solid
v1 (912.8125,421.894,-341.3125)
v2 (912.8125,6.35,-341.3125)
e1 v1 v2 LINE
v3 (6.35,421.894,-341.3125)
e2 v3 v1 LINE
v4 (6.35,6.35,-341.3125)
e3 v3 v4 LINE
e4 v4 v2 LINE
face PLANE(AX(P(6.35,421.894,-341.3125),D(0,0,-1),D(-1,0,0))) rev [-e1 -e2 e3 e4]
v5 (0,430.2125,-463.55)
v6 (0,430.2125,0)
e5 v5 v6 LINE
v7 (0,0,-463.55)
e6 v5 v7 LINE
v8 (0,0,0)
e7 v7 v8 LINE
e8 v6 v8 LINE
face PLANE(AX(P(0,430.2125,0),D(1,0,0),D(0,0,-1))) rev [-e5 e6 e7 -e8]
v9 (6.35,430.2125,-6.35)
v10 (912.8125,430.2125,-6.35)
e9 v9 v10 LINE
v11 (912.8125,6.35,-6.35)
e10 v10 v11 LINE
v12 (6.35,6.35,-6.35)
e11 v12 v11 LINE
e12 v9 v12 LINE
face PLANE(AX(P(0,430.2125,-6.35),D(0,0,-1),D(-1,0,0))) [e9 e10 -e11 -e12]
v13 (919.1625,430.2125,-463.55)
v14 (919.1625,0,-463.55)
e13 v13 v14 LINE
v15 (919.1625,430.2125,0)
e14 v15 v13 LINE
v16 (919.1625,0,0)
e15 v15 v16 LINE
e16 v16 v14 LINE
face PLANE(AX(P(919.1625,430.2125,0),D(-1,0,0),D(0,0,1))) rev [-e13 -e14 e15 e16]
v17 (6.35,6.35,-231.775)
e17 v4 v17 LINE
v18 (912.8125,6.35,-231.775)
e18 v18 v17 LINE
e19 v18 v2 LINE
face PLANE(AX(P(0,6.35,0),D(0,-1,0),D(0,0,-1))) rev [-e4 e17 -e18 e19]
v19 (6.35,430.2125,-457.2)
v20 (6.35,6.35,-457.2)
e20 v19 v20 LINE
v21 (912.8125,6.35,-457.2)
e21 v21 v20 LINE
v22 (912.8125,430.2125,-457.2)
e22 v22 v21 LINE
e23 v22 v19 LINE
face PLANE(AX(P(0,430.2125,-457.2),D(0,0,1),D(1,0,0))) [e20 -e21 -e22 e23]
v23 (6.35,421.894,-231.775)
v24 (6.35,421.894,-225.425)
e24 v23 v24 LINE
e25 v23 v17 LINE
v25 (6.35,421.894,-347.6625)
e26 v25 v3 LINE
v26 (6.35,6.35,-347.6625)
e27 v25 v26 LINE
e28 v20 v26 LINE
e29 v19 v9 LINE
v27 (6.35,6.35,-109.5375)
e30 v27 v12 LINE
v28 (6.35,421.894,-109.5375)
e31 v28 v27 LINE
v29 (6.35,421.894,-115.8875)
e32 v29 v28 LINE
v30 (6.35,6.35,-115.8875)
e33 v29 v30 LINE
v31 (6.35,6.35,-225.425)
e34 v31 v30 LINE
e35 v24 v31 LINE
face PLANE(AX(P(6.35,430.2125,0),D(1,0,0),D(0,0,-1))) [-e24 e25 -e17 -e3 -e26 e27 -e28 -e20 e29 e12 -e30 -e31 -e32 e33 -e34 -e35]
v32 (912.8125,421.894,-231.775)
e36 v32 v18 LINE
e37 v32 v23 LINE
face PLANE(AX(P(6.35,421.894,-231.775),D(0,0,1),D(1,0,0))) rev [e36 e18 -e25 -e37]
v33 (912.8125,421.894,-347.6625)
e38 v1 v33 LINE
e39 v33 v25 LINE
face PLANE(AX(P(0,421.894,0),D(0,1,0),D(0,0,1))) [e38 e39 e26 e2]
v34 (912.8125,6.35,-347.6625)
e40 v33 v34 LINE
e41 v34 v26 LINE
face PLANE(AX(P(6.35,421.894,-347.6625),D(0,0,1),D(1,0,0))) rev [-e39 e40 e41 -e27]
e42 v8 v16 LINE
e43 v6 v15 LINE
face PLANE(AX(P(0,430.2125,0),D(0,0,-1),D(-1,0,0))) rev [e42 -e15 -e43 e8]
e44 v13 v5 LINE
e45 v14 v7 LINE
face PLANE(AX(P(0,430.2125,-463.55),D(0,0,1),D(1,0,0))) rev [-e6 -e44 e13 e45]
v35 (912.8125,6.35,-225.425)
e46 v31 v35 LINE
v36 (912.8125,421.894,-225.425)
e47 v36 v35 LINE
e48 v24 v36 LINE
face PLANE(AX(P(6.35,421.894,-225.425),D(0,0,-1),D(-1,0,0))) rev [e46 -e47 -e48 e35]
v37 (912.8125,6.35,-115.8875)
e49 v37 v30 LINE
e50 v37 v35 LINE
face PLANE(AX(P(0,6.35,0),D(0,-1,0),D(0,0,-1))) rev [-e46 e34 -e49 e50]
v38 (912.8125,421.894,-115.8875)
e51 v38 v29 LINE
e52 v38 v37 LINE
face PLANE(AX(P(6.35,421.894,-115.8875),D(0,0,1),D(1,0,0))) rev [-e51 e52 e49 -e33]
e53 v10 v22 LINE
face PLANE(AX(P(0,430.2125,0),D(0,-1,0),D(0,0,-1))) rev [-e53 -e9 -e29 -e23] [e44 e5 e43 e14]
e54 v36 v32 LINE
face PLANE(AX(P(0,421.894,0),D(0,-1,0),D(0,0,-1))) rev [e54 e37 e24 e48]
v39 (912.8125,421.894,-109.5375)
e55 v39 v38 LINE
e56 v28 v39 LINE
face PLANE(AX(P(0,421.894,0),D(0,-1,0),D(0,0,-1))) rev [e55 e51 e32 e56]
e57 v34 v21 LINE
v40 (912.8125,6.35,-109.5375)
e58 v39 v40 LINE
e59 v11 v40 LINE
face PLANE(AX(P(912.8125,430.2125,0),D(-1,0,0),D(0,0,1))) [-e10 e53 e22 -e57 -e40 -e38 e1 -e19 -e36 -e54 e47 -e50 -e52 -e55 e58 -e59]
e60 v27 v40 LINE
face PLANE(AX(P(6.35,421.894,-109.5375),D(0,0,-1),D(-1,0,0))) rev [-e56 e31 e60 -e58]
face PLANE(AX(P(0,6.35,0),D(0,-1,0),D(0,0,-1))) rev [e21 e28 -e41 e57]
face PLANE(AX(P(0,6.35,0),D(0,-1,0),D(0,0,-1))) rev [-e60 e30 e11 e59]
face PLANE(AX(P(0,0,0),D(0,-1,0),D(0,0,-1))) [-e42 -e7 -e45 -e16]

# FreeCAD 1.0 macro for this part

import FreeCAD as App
import Part
import Sketcher
Q = App.Units.Quantity


def faces_at(feature, points):
    """Names of the faces that lie closest to the given points."""
    faces = feature.Shape.Faces
    near = lambda p: min(range(len(faces)), key=lambda i: faces[i].distToShape(Part.Vertex(*p))[0])
    return sorted({f"Face{near(p) + 1}" for p in points})


def add_polygon(sketch, points):
    """Adds a closed chain of lines whose ends are joined by coincident constraints."""
    first, n = sketch.GeometryCount, len(points)
    for a, b in zip(points, points[1:] + points[:1]):
        sketch.addGeometry(Part.LineSegment(App.Vector(*a, 0), App.Vector(*b, 0)), False)
    for i in range(n):
        sketch.addConstraint(Sketcher.Constraint("Coincident", first + i, 2, first + (i + 1) % n, 1))

doc = App.newDocument("Part")
body = doc.addObject("PartDesign::Body", "Body")

sketch1 = body.newObject("Sketcher::SketchObject", "Sketch")
sketch1.AttachmentSupport = (doc.getObject("XZ_Plane"), [""])
sketch1.MapMode = "FlatFace"
add_polygon(sketch1, [(0, -463.55), (0, 0), (919.1625, 0), (919.1625, -463.55)])
sketch1.addConstraint([
    Sketcher.Constraint("Vertical", 0),
    Sketcher.Constraint("Horizontal", 1),
    Sketcher.Constraint("Vertical", 2),
    Sketcher.Constraint("Horizontal", 3),
    Sketcher.Constraint("Coincident", 0, 2, -1, 1),
    Sketcher.Constraint("DistanceY", 0, 1, 0, 2, Q("18.25 in")),
    Sketcher.Constraint("DistanceX", 1, 1, 1, 2, Q("36.1875 in")),
])
pad1 = body.newObject("PartDesign::Pad", "Pad")
pad1.Profile = sketch1
pad1.Length = Q("16.9375 in")
pad1.Reversed = True
doc.recompute()

thickness = body.newObject("PartDesign::Thickness", "Thickness")
thickness.Base = (pad1, faces_at(pad1, [(459.581, 430.212, -231.775)]))
thickness.Value = Q("0.25 in")
thickness.Reversed = True
thickness.Join = "Intersection"

sketch2 = body.newObject("Sketcher::SketchObject", "Sketch001")
sketch2.AttachmentSupport = (doc.getObject("XZ_Plane"), [""])
sketch2.MapMode = "FlatFace"
sketch2.AttachmentOffset = App.Placement(App.Vector(0, 0, -15.41 * 25.4), App.Rotation())
add_polygon(sketch2, [(6.35, -347.6625), (6.35, -341.3125), (912.8125, -341.3125), (912.8125, -347.6625)])
sketch2.addConstraint([
    Sketcher.Constraint("Vertical", 0),
    Sketcher.Constraint("Horizontal", 1),
    Sketcher.Constraint("Vertical", 2),
    Sketcher.Constraint("Horizontal", 3),
    Sketcher.Constraint("DistanceY", 0, 1, 0, 2, Q("0.25 in")),
    Sketcher.Constraint("DistanceX", 1, 1, 1, 2, Q("35.6875 in")),
    Sketcher.Constraint("DistanceX", -1, 1, 0, 2, Q("0.25 in")),
    Sketcher.Constraint("DistanceY", 0, 2, -1, 1, Q("13.4375 in")),
])
pad2 = body.newObject("PartDesign::Pad", "Pad001")
pad2.Profile = sketch2
pad2.Type = "UpToFirst"

sketch3 = body.newObject("Sketcher::SketchObject", "Sketch002")
sketch3.AttachmentSupport = (doc.getObject("XZ_Plane"), [""])
sketch3.MapMode = "FlatFace"
sketch3.AttachmentOffset = App.Placement(App.Vector(0, 0, -15.41 * 25.4), App.Rotation())
add_polygon(sketch3, [(6.35, -231.775), (6.35, -225.425), (912.8125, -225.425), (912.8125, -231.775)])
sketch3.addConstraint([
    Sketcher.Constraint("Vertical", 0),
    Sketcher.Constraint("Horizontal", 1),
    Sketcher.Constraint("Vertical", 2),
    Sketcher.Constraint("Horizontal", 3),
    Sketcher.Constraint("DistanceY", 0, 1, 0, 2, Q("0.25 in")),
    Sketcher.Constraint("DistanceX", 1, 1, 1, 2, Q("35.6875 in")),
    Sketcher.Constraint("DistanceX", -1, 1, 0, 2, Q("0.25 in")),
    Sketcher.Constraint("DistanceY", 0, 2, -1, 1, Q("8.875 in")),
])
pad3 = body.newObject("PartDesign::Pad", "Pad002")
pad3.Profile = sketch3
pad3.Type = "UpToFirst"

sketch4 = body.newObject("Sketcher::SketchObject", "Sketch003")
sketch4.AttachmentSupport = (doc.getObject("XZ_Plane"), [""])
sketch4.MapMode = "FlatFace"
sketch4.AttachmentOffset = App.Placement(App.Vector(0, 0, -15.41 * 25.4), App.Rotation())
add_polygon(sketch4, [(6.35, -115.8875), (6.35, -109.5375), (912.8125, -109.5375), (912.8125, -115.8875)])
sketch4.addConstraint([
    Sketcher.Constraint("Vertical", 0),
    Sketcher.Constraint("Horizontal", 1),
    Sketcher.Constraint("Vertical", 2),
    Sketcher.Constraint("Horizontal", 3),
    Sketcher.Constraint("DistanceY", 0, 1, 0, 2, Q("0.25 in")),
    Sketcher.Constraint("DistanceX", 1, 1, 1, 2, Q("35.6875 in")),
    Sketcher.Constraint("DistanceX", -1, 1, 0, 2, Q("0.25 in")),
    Sketcher.Constraint("DistanceY", 0, 2, -1, 1, Q("4.3125 in")),
])
pad4 = body.newObject("PartDesign::Pad", "Pad003")
pad4.Profile = sketch4
pad4.Type = "UpToFirst"

sketch5 = body.newObject("Sketcher::SketchObject", "Sketch004")
sketch5.AttachmentSupport = (doc.getObject("XZ_Plane"), [""])
sketch5.MapMode = "FlatFace"
sketch5.AttachmentOffset = App.Placement(App.Vector(0, 0, -15.41 * 25.4), App.Rotation())
add_polygon(sketch5, [(6.35, -347.6625), (6.35, -341.3125), (912.8125, -341.3125), (912.8125, -347.6625)])
add_polygon(sketch5, [(6.35, -231.775), (6.35, -225.425), (912.8125, -225.425), (912.8125, -231.775)])
add_polygon(sketch5, [(6.35, -115.8875), (6.35, -109.5375), (912.8125, -109.5375), (912.8125, -115.8875)])
sketch5.addConstraint([
    Sketcher.Constraint("Vertical", 0),
    Sketcher.Constraint("Horizontal", 1),
    Sketcher.Constraint("Vertical", 2),
    Sketcher.Constraint("Horizontal", 3),
    Sketcher.Constraint("Vertical", 4),
    Sketcher.Constraint("Horizontal", 5),
    Sketcher.Constraint("Vertical", 6),
    Sketcher.Constraint("Horizontal", 7),
    Sketcher.Constraint("Vertical", 8),
    Sketcher.Constraint("Horizontal", 9),
    Sketcher.Constraint("Vertical", 10),
    Sketcher.Constraint("Horizontal", 11),
    Sketcher.Constraint("Vertical", 3, 2, 4, 2),
    Sketcher.Constraint("Vertical", 2, 2, 5, 2),
    Sketcher.Constraint("Vertical", 7, 2, 8, 2),
    Sketcher.Constraint("Vertical", 6, 2, 9, 2),
    Sketcher.Constraint("Equal", 2, 4),
    Sketcher.Constraint("Equal", 6, 8),
    Sketcher.Constraint("DistanceY", 0, 1, 0, 2, Q("0.25 in")),
    Sketcher.Constraint("DistanceX", 1, 1, 1, 2, Q("35.6875 in")),
    Sketcher.Constraint("DistanceX", -1, 1, 0, 2, Q("0.25 in")),
    Sketcher.Constraint("DistanceY", 0, 2, -1, 1, Q("13.4375 in")),
    Sketcher.Constraint("DistanceY", 4, 2, -1, 1, Q("8.875 in")),
    Sketcher.Constraint("DistanceY", 8, 2, -1, 1, Q("4.3125 in")),
])
pad5 = body.newObject("PartDesign::Pad", "Pad004")
pad5.Profile = sketch5
pad5.Length = Q("1.2 in")
pad5.Reversed = True

doc.recompute()
